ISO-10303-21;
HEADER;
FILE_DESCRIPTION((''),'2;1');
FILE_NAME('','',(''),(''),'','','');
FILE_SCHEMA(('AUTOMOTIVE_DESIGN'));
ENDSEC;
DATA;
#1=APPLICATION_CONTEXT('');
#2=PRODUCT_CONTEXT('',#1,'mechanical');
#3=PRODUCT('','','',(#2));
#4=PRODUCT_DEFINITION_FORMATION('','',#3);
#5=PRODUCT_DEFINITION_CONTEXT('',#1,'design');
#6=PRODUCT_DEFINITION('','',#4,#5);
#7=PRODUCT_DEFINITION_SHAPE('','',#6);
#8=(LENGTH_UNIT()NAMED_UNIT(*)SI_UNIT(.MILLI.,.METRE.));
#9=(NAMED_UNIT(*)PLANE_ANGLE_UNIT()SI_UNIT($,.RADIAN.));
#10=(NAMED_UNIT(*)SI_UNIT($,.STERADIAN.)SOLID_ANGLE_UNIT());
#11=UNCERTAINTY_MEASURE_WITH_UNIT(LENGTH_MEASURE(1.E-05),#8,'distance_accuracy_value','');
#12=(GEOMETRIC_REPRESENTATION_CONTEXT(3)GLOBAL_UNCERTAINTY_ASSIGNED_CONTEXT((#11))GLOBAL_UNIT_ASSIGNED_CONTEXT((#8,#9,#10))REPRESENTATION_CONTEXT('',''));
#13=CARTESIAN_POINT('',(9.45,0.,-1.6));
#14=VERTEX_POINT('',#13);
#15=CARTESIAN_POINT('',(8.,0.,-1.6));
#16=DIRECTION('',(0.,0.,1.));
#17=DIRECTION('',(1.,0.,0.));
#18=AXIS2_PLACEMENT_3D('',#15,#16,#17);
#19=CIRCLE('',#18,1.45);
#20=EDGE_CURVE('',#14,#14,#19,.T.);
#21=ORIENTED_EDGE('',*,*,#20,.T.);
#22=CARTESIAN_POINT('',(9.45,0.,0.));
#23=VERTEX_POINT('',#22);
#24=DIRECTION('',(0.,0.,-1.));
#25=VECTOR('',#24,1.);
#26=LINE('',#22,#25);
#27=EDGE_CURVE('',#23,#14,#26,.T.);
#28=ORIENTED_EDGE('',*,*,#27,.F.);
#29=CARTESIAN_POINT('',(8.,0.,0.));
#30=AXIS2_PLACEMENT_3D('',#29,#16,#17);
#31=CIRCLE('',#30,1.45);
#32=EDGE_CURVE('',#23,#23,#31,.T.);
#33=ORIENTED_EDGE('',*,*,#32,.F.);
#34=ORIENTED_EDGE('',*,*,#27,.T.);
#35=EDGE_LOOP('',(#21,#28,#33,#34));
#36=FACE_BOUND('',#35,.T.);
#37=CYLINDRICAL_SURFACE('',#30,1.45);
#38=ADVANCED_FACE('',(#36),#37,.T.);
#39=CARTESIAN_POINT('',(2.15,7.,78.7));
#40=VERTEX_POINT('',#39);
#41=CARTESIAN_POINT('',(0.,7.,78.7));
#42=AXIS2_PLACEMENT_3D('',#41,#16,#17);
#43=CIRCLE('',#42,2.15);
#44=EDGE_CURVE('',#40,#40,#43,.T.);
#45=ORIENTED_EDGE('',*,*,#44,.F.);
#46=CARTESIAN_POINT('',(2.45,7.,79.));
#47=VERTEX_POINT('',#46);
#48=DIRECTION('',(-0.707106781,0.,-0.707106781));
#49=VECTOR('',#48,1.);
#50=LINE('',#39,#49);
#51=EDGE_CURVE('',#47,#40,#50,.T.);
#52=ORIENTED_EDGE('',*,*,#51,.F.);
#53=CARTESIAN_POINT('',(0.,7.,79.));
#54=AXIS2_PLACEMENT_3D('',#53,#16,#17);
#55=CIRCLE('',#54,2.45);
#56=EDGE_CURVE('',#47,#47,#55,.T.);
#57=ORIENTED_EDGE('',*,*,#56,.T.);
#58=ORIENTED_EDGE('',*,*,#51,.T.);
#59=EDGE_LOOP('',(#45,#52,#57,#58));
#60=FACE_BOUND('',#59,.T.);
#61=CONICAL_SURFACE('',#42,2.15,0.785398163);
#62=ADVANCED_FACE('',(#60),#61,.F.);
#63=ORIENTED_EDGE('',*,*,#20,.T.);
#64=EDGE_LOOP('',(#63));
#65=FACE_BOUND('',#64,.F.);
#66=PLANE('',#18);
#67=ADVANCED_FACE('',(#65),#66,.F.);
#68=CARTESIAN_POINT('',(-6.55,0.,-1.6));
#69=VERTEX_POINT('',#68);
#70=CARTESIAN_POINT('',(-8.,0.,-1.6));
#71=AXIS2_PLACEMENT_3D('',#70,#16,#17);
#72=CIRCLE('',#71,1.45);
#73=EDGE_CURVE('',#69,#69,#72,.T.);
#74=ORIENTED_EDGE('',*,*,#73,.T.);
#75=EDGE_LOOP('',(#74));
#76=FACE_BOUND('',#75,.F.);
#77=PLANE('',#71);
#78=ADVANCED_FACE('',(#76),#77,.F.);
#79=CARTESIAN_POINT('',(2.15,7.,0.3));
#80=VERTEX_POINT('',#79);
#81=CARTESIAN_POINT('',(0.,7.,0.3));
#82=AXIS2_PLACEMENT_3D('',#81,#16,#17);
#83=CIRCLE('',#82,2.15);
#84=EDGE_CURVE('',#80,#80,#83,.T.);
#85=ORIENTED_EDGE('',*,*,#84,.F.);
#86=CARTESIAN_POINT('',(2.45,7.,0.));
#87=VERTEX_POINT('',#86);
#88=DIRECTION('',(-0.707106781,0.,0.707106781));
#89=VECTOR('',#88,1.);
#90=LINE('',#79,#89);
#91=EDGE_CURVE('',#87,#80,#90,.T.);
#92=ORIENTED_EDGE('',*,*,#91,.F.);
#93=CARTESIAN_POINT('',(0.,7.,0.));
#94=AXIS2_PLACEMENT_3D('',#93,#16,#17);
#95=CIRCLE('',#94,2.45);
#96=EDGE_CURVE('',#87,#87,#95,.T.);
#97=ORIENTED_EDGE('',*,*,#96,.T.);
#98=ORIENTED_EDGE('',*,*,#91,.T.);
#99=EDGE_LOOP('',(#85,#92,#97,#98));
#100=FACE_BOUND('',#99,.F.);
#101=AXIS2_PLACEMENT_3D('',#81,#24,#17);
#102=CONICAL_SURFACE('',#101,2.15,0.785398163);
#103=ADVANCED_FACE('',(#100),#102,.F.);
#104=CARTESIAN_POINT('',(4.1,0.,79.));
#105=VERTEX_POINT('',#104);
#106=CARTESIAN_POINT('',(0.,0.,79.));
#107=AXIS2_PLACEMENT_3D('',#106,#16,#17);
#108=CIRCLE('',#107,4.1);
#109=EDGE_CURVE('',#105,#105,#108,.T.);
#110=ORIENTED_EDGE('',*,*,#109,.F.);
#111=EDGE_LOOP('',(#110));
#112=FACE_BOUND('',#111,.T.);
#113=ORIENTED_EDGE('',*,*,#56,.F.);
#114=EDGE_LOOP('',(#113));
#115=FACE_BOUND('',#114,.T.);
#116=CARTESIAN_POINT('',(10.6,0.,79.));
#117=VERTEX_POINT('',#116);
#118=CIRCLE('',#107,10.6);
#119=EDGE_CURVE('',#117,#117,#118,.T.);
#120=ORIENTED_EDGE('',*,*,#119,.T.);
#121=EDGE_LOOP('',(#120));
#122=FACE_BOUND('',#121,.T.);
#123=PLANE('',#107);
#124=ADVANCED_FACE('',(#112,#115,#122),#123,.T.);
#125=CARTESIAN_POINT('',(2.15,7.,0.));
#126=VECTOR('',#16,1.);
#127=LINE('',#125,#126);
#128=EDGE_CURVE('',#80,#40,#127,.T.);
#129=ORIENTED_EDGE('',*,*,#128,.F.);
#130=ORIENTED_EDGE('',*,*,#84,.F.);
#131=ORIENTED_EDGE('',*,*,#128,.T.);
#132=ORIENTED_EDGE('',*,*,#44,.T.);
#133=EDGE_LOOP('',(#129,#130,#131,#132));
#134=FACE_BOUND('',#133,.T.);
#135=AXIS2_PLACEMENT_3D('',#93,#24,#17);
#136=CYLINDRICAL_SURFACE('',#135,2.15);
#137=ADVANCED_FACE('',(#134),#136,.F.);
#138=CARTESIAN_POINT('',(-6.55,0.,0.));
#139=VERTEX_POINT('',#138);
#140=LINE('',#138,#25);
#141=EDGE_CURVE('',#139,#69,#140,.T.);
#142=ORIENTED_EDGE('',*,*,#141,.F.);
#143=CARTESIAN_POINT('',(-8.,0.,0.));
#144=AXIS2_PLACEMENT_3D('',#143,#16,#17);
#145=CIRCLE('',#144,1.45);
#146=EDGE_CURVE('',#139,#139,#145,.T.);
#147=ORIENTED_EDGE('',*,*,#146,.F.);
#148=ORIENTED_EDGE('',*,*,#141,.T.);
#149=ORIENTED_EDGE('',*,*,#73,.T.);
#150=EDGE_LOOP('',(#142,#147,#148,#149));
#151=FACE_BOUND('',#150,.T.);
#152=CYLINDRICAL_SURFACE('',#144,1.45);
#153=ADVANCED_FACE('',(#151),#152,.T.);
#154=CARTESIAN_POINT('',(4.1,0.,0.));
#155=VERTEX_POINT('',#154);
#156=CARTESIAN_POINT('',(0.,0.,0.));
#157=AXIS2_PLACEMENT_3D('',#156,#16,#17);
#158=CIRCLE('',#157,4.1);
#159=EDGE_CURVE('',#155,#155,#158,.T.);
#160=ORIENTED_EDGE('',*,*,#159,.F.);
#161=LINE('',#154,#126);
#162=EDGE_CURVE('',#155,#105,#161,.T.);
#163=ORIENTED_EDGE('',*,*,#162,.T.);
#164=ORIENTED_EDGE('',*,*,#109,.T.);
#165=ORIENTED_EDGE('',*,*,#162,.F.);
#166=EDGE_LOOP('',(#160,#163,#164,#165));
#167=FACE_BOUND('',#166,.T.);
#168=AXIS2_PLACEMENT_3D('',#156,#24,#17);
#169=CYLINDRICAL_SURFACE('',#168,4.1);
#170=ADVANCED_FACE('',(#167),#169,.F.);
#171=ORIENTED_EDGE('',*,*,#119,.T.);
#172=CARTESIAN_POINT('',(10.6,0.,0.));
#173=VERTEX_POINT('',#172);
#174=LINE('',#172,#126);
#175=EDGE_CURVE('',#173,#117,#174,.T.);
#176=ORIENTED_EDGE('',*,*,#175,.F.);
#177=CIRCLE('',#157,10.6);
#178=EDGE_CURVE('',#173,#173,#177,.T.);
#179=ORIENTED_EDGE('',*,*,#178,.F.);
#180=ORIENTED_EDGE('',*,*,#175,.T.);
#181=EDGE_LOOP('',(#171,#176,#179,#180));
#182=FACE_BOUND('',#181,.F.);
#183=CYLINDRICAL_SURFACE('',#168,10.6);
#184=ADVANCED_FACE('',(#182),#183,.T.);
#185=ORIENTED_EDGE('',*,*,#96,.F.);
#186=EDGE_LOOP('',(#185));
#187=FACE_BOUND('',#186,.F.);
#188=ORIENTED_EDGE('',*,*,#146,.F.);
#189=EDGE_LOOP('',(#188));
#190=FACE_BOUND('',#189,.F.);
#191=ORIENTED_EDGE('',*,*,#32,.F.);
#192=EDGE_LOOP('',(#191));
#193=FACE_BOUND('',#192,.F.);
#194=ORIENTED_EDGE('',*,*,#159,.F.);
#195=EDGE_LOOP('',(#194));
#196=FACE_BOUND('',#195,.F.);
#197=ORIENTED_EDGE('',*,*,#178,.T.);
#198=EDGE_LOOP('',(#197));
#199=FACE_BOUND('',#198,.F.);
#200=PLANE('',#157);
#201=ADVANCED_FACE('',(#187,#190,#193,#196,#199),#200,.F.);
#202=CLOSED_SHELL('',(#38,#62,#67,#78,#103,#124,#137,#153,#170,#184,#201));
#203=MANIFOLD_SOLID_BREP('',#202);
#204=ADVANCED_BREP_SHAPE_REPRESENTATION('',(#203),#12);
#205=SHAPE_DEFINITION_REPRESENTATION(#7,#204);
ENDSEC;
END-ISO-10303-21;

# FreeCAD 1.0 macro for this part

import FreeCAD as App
import Part
import Sketcher

V = App.Vector


def edges_at(feature, points):
    """Names of the edges that pass closest to the given points."""
    edges = feature.Shape.Edges
    near = lambda p: min(range(len(edges)), key=lambda i: edges[i].distToShape(Part.Vertex(*p))[0])
    return sorted({f"Edge{near(p) + 1}" for p in points})

doc = App.newDocument("Part")
params = doc.addObject("Spreadsheet::Sheet", "Params")
for row, (alias, value) in enumerate([
    ("sketch1_diameter", "21.2 mm"),
    ("sketch1_diameter2", "8.2 mm"),
    ("sketch1_diameter3", "4.3 mm"),
    ("pad1_length", "79 mm"),
    ("sketch2_diameter", "2.9 mm"),
    ("pad2_length", "1.6 mm"),
    ("chamfer_size", "0.3 mm"),
], start=1):
    params.set(f"A{row}", alias)
    params.set(f"B{row}", "=" + value)
    params.setAlias(f"B{row}", alias)

body = doc.addObject("PartDesign::Body", "Body")

# Sketch on XY plane
sketch1 = doc.addObject("Sketcher::SketchObject", "Sketch")
body.addObject(sketch1)
sketch1.AttachmentSupport = (doc.XY_Plane, [""])
sketch1.MapMode = "FlatFace"
sketch1.addGeometry(Part.Circle(V(0, 0, 0), V(0, 0, 1), 10.6), False)
sketch1.addGeometry(Part.Circle(V(0, 0, 0), V(0, 0, 1), 4.1), False)
sketch1.addGeometry(Part.Circle(V(0, 7, 0), V(0, 0, 1), 2.15), False)
sketch1.addConstraint(Sketcher.Constraint("Coincident", 0, 3, -1, 1))
sketch1.addConstraint(Sketcher.Constraint("Coincident", 1, 3, -1, 1))
sketch1.addConstraint(Sketcher.Constraint("PointOnObject", 2, 3, -2))
sketch1.addConstraint(Sketcher.Constraint("Diameter", 0, 21.2))
sketch1.addConstraint(Sketcher.Constraint("Diameter", 1, 8.2))
sketch1.addConstraint(Sketcher.Constraint("Diameter", 2, 4.3))
sketch1.addConstraint(Sketcher.Constraint("DistanceY", -1, 1, 2, 3, 7.0))
sketch1.setExpression("Constraints[3]", "Params.sketch1_diameter")
sketch1.setExpression("Constraints[4]", "Params.sketch1_diameter2")
sketch1.setExpression("Constraints[5]", "Params.sketch1_diameter3")
pad1 = doc.addObject("PartDesign::Pad", "Pad")
body.addObject(pad1)
pad1.Profile = sketch1
pad1.setExpression("Length", "Params.pad1_length")

# Sketch on XY plane
sketch2 = doc.addObject("Sketcher::SketchObject", "Sketch001")
body.addObject(sketch2)
sketch2.AttachmentSupport = (doc.XY_Plane, [""])
sketch2.MapMode = "FlatFace"
sketch2.addGeometry(Part.Circle(V(-8, 0, 0), V(0, 0, 1), 1.45), False)
sketch2.addGeometry(Part.Circle(V(8, 0, 0), V(0, 0, 1), 1.45), False)
sketch2.addConstraint(Sketcher.Constraint("Equal", 0, 1))
sketch2.addConstraint(Sketcher.Constraint("Symmetric", 0, 3, 1, 3, -1, 1))
sketch2.addConstraint(Sketcher.Constraint("PointOnObject", 0, 3, -1))
sketch2.addConstraint(Sketcher.Constraint("Diameter", 0, 2.9))
sketch2.addConstraint(Sketcher.Constraint("DistanceX", 0, 3, -1, 1, 8.0))
sketch2.setExpression("Constraints[3]", "Params.sketch2_diameter")
pad2 = doc.addObject("PartDesign::Pad", "Pad001")
body.addObject(pad2)
pad2.Profile = sketch2
pad2.setExpression("Length", "Params.pad2_length")
pad2.Reversed = True
doc.recompute()

chamfer = doc.addObject("PartDesign::Chamfer", "Chamfer")
body.addObject(chamfer)
chamfer.Base = (pad2, edges_at(pad2, [(-2.15, 7, 0), (-2.15, 7, 79)]))
chamfer.setExpression("Size", "Params.chamfer_size")

doc.recompute()
